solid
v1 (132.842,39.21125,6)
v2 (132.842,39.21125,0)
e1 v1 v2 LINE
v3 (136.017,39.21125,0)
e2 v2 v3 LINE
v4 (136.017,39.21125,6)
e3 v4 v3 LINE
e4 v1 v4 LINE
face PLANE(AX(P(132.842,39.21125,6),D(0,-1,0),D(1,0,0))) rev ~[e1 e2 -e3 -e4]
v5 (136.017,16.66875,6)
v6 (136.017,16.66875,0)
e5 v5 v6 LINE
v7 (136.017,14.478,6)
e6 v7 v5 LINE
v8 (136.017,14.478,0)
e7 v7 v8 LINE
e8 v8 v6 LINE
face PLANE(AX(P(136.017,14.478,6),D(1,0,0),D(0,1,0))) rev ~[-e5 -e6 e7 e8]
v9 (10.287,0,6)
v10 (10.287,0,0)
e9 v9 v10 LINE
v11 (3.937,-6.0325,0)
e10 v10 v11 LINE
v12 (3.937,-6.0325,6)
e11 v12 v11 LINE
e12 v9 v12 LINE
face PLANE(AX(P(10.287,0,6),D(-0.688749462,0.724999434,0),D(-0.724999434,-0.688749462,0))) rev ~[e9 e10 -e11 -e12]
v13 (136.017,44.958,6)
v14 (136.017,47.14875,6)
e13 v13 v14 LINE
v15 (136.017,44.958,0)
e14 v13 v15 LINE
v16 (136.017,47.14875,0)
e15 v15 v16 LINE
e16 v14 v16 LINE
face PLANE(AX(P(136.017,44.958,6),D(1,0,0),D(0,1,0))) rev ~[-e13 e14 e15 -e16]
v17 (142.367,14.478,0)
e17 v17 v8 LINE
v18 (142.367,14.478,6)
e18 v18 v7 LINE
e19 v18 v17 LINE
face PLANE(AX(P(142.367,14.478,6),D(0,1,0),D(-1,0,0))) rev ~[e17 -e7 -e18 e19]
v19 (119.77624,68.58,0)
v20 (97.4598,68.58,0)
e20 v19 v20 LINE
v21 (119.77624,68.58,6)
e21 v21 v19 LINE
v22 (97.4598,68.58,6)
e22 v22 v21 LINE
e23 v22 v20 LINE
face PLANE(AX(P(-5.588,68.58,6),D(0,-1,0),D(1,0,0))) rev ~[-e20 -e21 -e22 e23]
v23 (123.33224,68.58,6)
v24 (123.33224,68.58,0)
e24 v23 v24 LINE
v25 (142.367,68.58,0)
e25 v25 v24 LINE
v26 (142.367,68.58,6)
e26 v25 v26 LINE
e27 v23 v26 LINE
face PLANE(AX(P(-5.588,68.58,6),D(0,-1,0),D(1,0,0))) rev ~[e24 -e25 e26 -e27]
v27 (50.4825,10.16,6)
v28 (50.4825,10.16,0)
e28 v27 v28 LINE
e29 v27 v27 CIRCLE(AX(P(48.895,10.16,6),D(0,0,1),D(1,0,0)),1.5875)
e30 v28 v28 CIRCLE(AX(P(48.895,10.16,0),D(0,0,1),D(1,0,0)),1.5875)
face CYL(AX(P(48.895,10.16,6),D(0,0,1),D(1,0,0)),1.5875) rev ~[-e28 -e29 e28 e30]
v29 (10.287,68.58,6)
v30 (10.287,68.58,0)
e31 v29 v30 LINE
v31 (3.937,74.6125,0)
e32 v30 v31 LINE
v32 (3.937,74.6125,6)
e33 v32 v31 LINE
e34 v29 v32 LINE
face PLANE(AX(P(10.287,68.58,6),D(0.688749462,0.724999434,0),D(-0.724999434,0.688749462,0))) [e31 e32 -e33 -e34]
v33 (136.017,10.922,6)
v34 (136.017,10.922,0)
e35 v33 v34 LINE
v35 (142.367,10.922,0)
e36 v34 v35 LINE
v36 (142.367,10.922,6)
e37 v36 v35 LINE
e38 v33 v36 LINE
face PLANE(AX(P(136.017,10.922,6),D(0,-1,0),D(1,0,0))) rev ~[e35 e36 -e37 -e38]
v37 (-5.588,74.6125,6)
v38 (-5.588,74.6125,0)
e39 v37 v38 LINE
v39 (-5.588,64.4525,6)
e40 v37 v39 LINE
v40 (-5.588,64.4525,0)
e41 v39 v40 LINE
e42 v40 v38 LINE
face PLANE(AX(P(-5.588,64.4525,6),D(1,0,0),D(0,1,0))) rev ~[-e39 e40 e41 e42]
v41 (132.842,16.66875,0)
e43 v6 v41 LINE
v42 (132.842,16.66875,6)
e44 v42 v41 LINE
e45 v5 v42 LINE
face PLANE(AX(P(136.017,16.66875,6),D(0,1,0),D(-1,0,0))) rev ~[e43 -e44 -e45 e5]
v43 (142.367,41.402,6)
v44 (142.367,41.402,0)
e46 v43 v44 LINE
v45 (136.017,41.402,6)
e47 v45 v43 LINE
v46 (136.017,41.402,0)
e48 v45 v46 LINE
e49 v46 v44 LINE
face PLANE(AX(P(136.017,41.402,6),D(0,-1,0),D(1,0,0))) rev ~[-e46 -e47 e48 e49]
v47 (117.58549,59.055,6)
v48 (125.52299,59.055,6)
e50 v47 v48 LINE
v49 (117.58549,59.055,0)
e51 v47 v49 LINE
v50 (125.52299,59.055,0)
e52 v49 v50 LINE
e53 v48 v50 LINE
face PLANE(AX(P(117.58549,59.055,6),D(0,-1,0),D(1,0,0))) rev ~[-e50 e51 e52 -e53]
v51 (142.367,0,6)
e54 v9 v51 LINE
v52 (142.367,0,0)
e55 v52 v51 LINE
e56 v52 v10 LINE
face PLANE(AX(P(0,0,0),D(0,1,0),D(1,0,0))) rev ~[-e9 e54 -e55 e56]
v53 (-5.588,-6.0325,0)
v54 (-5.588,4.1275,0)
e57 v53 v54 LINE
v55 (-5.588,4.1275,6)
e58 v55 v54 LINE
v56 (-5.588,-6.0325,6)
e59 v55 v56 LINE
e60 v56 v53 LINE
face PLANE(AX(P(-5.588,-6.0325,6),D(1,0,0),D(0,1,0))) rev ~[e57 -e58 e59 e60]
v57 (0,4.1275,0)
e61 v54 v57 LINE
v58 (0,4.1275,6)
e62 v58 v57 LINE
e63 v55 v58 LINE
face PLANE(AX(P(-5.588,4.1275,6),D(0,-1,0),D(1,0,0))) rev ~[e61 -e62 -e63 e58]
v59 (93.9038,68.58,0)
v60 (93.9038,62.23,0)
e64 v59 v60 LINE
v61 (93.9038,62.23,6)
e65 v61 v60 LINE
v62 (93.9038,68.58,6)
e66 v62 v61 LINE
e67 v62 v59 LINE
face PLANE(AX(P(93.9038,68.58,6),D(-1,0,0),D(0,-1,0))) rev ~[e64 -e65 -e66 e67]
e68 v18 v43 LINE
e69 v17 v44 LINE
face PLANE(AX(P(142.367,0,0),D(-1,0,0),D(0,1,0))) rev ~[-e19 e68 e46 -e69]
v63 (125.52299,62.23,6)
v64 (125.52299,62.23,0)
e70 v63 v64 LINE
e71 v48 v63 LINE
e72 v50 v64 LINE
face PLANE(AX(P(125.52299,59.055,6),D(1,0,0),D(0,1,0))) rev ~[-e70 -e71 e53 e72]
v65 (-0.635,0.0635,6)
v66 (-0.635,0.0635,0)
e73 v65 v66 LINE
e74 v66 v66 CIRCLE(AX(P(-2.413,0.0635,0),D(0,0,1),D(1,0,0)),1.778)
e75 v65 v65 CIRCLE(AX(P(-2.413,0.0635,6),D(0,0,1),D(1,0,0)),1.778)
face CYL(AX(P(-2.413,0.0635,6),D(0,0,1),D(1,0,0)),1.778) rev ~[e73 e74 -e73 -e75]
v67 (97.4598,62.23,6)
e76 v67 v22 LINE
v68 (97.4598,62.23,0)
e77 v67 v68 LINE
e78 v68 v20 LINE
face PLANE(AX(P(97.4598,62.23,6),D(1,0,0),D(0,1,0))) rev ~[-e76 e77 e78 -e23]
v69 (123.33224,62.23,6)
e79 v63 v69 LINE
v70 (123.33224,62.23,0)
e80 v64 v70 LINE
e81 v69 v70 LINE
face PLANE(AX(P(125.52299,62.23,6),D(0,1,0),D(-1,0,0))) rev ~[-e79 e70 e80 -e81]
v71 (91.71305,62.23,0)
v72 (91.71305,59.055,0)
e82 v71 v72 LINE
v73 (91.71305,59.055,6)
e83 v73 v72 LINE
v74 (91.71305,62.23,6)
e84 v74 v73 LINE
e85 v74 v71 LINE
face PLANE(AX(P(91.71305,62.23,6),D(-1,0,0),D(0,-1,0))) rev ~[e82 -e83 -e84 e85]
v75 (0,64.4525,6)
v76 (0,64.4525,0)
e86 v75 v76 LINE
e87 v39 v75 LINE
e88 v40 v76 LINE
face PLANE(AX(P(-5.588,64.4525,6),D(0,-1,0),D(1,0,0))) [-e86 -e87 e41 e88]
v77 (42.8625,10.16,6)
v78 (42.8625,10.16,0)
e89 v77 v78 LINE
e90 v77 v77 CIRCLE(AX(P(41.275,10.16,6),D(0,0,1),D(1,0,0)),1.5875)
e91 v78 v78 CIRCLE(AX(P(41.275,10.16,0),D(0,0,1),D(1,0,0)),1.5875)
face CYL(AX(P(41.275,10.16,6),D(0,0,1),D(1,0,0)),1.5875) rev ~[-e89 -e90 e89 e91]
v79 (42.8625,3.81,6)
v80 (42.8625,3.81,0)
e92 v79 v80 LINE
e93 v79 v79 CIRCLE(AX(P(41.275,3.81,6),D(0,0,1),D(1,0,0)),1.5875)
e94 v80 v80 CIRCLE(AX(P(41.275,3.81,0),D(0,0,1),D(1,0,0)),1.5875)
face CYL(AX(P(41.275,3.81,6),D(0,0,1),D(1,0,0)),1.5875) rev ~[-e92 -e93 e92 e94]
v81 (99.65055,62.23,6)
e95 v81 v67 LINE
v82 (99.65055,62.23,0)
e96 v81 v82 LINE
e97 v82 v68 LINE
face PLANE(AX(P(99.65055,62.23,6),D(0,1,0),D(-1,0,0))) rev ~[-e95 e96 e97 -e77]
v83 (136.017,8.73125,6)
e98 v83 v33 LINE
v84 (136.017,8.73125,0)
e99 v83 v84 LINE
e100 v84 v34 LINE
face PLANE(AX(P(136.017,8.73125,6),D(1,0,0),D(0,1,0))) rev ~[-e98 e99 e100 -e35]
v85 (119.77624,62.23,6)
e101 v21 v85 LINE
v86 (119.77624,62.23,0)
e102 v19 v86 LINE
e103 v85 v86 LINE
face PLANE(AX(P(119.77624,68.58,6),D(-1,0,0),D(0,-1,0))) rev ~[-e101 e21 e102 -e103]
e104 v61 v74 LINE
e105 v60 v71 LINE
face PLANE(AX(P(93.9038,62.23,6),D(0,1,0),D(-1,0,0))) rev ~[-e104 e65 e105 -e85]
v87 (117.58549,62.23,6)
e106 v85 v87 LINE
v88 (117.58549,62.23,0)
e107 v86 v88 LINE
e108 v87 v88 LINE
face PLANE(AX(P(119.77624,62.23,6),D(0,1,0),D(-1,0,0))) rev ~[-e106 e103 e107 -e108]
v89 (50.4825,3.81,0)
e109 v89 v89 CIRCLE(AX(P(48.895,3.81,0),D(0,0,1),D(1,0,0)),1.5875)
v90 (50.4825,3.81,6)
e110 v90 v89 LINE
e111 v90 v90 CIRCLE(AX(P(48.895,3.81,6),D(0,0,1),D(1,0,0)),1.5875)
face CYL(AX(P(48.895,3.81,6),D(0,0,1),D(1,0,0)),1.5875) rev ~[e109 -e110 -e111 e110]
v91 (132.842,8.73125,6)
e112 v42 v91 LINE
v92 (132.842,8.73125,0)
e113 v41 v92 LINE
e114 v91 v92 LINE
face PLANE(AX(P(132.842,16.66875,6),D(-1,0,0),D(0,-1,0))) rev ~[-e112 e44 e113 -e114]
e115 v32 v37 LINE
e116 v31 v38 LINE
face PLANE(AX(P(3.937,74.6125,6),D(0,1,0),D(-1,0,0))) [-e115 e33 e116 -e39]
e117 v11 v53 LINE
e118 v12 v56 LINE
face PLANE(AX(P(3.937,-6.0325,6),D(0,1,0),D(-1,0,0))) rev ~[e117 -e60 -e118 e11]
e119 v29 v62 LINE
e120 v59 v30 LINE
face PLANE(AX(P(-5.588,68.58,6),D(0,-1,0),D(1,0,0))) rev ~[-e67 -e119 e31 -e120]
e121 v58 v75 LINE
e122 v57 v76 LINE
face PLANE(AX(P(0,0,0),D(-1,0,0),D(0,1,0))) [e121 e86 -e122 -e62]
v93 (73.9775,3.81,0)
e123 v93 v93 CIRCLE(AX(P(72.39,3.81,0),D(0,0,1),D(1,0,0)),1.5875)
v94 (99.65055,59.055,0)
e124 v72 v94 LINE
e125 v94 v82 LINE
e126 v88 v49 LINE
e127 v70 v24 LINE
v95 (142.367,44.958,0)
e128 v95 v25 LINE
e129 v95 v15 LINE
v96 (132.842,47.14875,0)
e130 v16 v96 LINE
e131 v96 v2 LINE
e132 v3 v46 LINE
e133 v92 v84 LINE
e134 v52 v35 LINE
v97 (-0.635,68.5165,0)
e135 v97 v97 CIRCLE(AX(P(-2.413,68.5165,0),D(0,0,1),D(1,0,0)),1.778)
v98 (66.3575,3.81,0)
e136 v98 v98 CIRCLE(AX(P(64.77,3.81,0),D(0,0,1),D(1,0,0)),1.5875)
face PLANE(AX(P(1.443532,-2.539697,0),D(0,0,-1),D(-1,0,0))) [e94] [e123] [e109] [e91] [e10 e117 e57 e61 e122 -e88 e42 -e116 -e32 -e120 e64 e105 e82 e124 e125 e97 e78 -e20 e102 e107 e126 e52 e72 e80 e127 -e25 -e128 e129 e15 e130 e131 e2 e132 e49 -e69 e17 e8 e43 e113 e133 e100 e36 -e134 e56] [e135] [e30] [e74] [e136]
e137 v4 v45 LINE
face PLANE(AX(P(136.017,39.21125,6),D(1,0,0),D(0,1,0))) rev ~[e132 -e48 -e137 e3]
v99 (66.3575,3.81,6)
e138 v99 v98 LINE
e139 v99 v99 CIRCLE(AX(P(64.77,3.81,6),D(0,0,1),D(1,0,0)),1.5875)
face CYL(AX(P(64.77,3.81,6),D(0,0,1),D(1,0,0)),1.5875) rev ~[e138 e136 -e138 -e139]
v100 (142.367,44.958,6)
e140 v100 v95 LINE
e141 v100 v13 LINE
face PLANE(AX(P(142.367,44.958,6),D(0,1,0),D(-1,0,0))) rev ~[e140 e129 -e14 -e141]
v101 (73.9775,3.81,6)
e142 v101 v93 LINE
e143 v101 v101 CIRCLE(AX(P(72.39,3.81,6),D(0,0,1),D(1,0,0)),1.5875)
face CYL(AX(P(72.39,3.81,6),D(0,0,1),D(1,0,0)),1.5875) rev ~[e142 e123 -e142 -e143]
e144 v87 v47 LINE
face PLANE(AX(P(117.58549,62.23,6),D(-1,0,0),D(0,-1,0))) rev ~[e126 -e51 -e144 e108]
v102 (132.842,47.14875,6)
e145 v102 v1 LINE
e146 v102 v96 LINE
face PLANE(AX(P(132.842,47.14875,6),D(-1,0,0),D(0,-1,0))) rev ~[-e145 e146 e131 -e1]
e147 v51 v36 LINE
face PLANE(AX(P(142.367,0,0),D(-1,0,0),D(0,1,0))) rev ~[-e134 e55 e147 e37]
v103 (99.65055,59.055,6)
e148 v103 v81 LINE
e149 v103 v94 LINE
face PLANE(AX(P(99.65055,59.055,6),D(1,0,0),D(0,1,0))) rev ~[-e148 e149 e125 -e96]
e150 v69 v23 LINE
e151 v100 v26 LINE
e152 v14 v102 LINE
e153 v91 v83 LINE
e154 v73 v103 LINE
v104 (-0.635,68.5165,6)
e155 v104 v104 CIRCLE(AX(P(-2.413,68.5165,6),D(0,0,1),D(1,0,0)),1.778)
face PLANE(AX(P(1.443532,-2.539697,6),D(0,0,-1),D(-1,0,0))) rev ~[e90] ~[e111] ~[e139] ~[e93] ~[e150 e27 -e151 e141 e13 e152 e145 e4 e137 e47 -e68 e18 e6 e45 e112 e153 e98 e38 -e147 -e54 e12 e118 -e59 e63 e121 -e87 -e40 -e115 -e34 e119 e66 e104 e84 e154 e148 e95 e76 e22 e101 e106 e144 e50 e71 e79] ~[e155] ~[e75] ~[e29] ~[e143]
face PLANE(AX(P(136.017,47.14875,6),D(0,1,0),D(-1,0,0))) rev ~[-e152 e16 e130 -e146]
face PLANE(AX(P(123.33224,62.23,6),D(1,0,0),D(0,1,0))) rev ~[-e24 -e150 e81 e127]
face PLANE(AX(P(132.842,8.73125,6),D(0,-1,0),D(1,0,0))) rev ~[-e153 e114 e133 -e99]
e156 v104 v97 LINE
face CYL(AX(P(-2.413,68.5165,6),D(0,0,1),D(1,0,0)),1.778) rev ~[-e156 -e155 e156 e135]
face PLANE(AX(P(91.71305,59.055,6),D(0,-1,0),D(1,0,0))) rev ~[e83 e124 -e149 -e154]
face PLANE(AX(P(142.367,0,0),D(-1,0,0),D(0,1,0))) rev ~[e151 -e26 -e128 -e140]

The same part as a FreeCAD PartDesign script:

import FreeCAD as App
import Part
import Sketcher
from FreeCAD import Vector
Q = App.Units.Quantity


def add_polygon(sketch, points):
    """Adds a closed chain of lines whose ends are joined by coincident constraints."""
    first, n = sketch.GeometryCount, len(points)
    for a, b in zip(points, points[1:] + points[:1]):
        sketch.addGeometry(Part.LineSegment(App.Vector(*a, 0), App.Vector(*b, 0)), False)
    for i in range(n):
        sketch.addConstraint(Sketcher.Constraint("Coincident", first + i, 2, first + (i + 1) % n, 1))

doc = App.newDocument("Part")
body = doc.addObject("PartDesign::Body", "Body")

sketch1 = doc.addObject("Sketcher::SketchObject", "Sketch")
body.addObject(sketch1)
sketch1.AttachmentSupport = (doc.XY_Plane, [""])
sketch1.MapMode = "FlatFace"
add_polygon(sketch1, [(0, 68.58), (0, 0), (142.367, 0), (142.367, 68.58)])
sketch1.addConstraint([
    Sketcher.Constraint("Vertical", 0),
    Sketcher.Constraint("Horizontal", 1),
    Sketcher.Constraint("Vertical", 2),
    Sketcher.Constraint("Horizontal", 3),
    Sketcher.Constraint("Coincident", 0, 2, -1, 1),
    Sketcher.Constraint("DistanceY", 0, 2, 0, 1, Q("2.7 in")),
    Sketcher.Constraint("DistanceX", 1, 1, 1, 2, Q("5.605 in")),
])
pad1 = doc.addObject("PartDesign::Pad", "Pad")
body.addObject(pad1)
pad1.Profile = sketch1
pad1.Length = 6

sketch2 = doc.addObject("Sketcher::SketchObject", "Sketch001")
body.addObject(sketch2)
sketch2.AttachmentSupport = (doc.XY_Plane, [""])
sketch2.MapMode = "FlatFace"
sketch2.AttachmentOffset = App.Placement(Vector(0, 0, 6), App.Rotation())
add_polygon(sketch2, [(-5.588, 68.58), (-5.588, 64.4525), (0, 64.4525), (0, 68.58)])
add_polygon(sketch2, [(-5.588, 4.1275), (-5.588, 0), (0, 0), (0, 4.1275)])
sketch2.addConstraint([
    Sketcher.Constraint("Vertical", 0),
    Sketcher.Constraint("Horizontal", 1),
    Sketcher.Constraint("Vertical", 2),
    Sketcher.Constraint("Horizontal", 3),
    Sketcher.Constraint("Vertical", 4),
    Sketcher.Constraint("Horizontal", 5),
    Sketcher.Constraint("Vertical", 6),
    Sketcher.Constraint("Horizontal", 7),
    Sketcher.Constraint("Coincident", 5, 2, -1, 1),
    Sketcher.Constraint("PointOnObject", 1, 2, -2),
    Sketcher.Constraint("Vertical", 3, 2, 4, 2),
    Sketcher.Constraint("Equal", 2, 4),
    Sketcher.Constraint("DistanceX", 1, 1, 1, 2, Q("0.22 in")),
    Sketcher.Constraint("DistanceY", -1, 1, 2, 2, Q("2.7 in")),
    Sketcher.Constraint("DistanceY", 0, 2, 0, 1, Q("0.1625 in")),
])
pad2 = doc.addObject("PartDesign::Pad", "Pad001")
body.addObject(pad2)
pad2.Profile = sketch2
pad2.Length = 6
pad2.Reversed = True

sketch3 = doc.addObject("Sketcher::SketchObject", "Sketch002")
body.addObject(sketch3)
sketch3.AttachmentSupport = (doc.XY_Plane, [""])
sketch3.MapMode = "FlatFace"
sketch3.AttachmentOffset = App.Placement(Vector(0, 0, 6), App.Rotation())
add_polygon(sketch3, [(0, 72.39), (0, 68.58), (9.525, 68.58), (2.54, 72.39)])
add_polygon(sketch3, [(0, 0), (0, -3.81), (2.54, -3.81), (9.525, 0)])
sketch3.addConstraint([
    Sketcher.Constraint("Vertical", 0),
    Sketcher.Constraint("Horizontal", 1),
    Sketcher.Constraint("Horizontal", 3),
    Sketcher.Constraint("Vertical", 4),
    Sketcher.Constraint("Horizontal", 5),
    Sketcher.Constraint("Horizontal", 7),
    Sketcher.Constraint("Coincident", 7, 2, -1, 1),
    Sketcher.Constraint("PointOnObject", 0, 2, -2),
    Sketcher.Constraint("Vertical", 2, 2, 5, 2),
    Sketcher.Constraint("Vertical", 1, 2, 6, 2),
    Sketcher.Constraint("Equal", 0, 4),
    Sketcher.Constraint("DistanceX", 3, 2, 3, 1, Q("0.1 in")),
    Sketcher.Constraint("DistanceY", 4, 2, 3, 2, Q("3 in")),
    Sketcher.Constraint("DistanceY", 0, 2, 0, 1, Q("0.15 in")),
    Sketcher.Constraint("DistanceX", 1, 1, 1, 2, Q("0.375 in")),
])
pad3 = doc.addObject("PartDesign::Pad", "Pad002")
body.addObject(pad3)
pad3.Profile = sketch3
pad3.Length = 6
pad3.Reversed = True

sketch4 = doc.addObject("Sketcher::SketchObject", "Sketch003")
body.addObject(sketch4)
sketch4.AttachmentSupport = (doc.XY_Plane, [""])
sketch4.MapMode = "FlatFace"
sketch4.AttachmentOffset = App.Placement(Vector(0, 0, 6), App.Rotation())
add_polygon(sketch4, [(142.367, 44.958), (136.017, 44.958), (136.017, 47.14875), (132.842, 47.14875), (132.842, 39.21125), (136.017, 39.21125), (136.017, 41.402), (142.367, 41.402)])
add_polygon(sketch4, [(142.367, 14.478), (136.017, 14.478), (136.017, 16.66875), (132.842, 16.66875), (132.842, 8.73125), (136.017, 8.73125), (136.017, 10.922), (142.367, 10.922)])
add_polygon(sketch4, [(93.9038, 62.23), (91.71305, 62.23), (91.71305, 59.055), (99.65055, 59.055), (99.65055, 62.23), (97.4598, 62.23), (97.4598, 68.58), (93.9038, 68.58)])
add_polygon(sketch4, [(123.33224, 68.58), (119.77624, 68.58), (119.77624, 62.23), (117.58549, 62.23), (117.58549, 59.055), (125.52299, 59.055), (125.52299, 62.23), (123.33224, 62.23)])
sketch4.addConstraint([
    Sketcher.Constraint("Horizontal", 0),
    Sketcher.Constraint("Vertical", 1),
    Sketcher.Constraint("Horizontal", 2),
    Sketcher.Constraint("Vertical", 3),
    Sketcher.Constraint("Horizontal", 4),
    Sketcher.Constraint("Vertical", 5),
    Sketcher.Constraint("Horizontal", 6),
    Sketcher.Constraint("Vertical", 7),
    Sketcher.Constraint("Horizontal", 8),
    Sketcher.Constraint("Vertical", 9),
    Sketcher.Constraint("Horizontal", 10),
    Sketcher.Constraint("Vertical", 11),
    Sketcher.Constraint("Horizontal", 12),
    Sketcher.Constraint("Vertical", 13),
    Sketcher.Constraint("Horizontal", 14),
    Sketcher.Constraint("Vertical", 15),
    Sketcher.Constraint("Horizontal", 16),
    Sketcher.Constraint("Vertical", 17),
    Sketcher.Constraint("Horizontal", 18),
    Sketcher.Constraint("Vertical", 19),
    Sketcher.Constraint("Horizontal", 20),
    Sketcher.Constraint("Vertical", 21),
    Sketcher.Constraint("Horizontal", 22),
    Sketcher.Constraint("Vertical", 23),
    Sketcher.Constraint("Horizontal", 24),
    Sketcher.Constraint("Vertical", 25),
    Sketcher.Constraint("Horizontal", 26),
    Sketcher.Constraint("Vertical", 27),
    Sketcher.Constraint("Horizontal", 28),
    Sketcher.Constraint("Vertical", 29),
    Sketcher.Constraint("Horizontal", 30),
    Sketcher.Constraint("Vertical", 31),
    Sketcher.Constraint("Horizontal", 16, 2, 19, 2),
    Sketcher.Constraint("Horizontal", 22, 2, 24, 2),
    Sketcher.Constraint("Horizontal", 23, 2, 25, 2),
    Sketcher.Constraint("Horizontal", 18, 2, 27, 2),
    Sketcher.Constraint("Horizontal", 26, 2, 29, 2),
    Sketcher.Constraint("Vertical", 1, 2, 4, 2),
    Sketcher.Constraint("Vertical", 5, 2, 8, 2),
    Sketcher.Constraint("Vertical", 3, 2, 10, 2),
    Sketcher.Constraint("Vertical", 9, 2, 12, 2),
    Sketcher.Constraint("Vertical", 7, 2, 14, 2),
    Sketcher.Constraint("Equal", 16, 20),
    Sketcher.Constraint("Equal", 22, 24),
    Sketcher.Constraint("Equal", 20, 26),
    Sketcher.Constraint("Equal", 18, 28),
    Sketcher.Constraint("Equal", 30, 1),
    Sketcher.Constraint("Equal", 28, 3),
    Sketcher.Constraint("Equal", 1, 5),
    Sketcher.Constraint("Equal", 5, 9),
    Sketcher.Constraint("Equal", 3, 11),
    Sketcher.Constraint("Equal", 9, 13),
    Sketcher.Constraint("Equal", 12, 17),
    Sketcher.Constraint("Equal", 14, 21),
    Sketcher.Constraint("DistanceX", 0, 2, 0, 1, Q("0.25 in")),
    Sketcher.Constraint("DistanceX", 22, 2, 22, 1, Q("0.14 in")),
    Sketcher.Constraint("DistanceY", -1, 1, 21, 2, Q("2.7 in")),
    Sketcher.Constraint("DistanceY", 8, 2, 0, 2, Q("1.2 in")),
    Sketcher.Constraint("DistanceX", 2, 2, 2, 1, Q("0.125 in")),
    Sketcher.Constraint("DistanceX", 18, 1, 18, 2, Q("0.3125 in")),
    Sketcher.Constraint("DistanceY", -1, 1, 0, 2, Q("1.77 in")),
    Sketcher.Constraint("DistanceX", -1, 1, 2, 2, Q("5.23 in")),
    Sketcher.Constraint("DistanceX", -1, 1, 20, 2, Q("3.837 in")),
    Sketcher.Constraint("DistanceX", -1, 1, 24, 2, Q("4.7156 in")),
])
pocket1 = doc.addObject("PartDesign::Pocket", "Pocket")
body.addObject(pocket1)
pocket1.Profile = sketch4
pocket1.Type = "ThroughAll"

sketch5 = doc.addObject("Sketcher::SketchObject", "Sketch004")
body.addObject(sketch5)
sketch5.AttachmentSupport = (doc.XY_Plane, [""])
sketch5.MapMode = "FlatFace"
sketch5.AttachmentOffset = App.Placement(Vector(0, 0, 6), App.Rotation())
add_polygon(sketch5, [(3.937, -6.0325), (10.287, 0), (-5.588, 0), (-5.588, -6.0325)])
add_polygon(sketch5, [(-5.588, 68.58), (10.287, 68.58), (3.937, 74.6125), (-5.588, 74.6125)])
sketch5.addConstraint([
    Sketcher.Constraint("Horizontal", 1),
    Sketcher.Constraint("Vertical", 2),
    Sketcher.Constraint("Horizontal", 3),
    Sketcher.Constraint("Horizontal", 4),
    Sketcher.Constraint("Horizontal", 6),
    Sketcher.Constraint("Vertical", 7),
    Sketcher.Constraint("PointOnObject", 0, 2, -1),
    Sketcher.Constraint("Vertical", 0, 2, 4, 2),
    Sketcher.Constraint("Vertical", 3, 2, 5, 2),
    Sketcher.Constraint("Vertical", 2, 2, 6, 2),
    Sketcher.Constraint("Equal", 2, 7),
    Sketcher.Constraint("DistanceY", -1, 1, 4, 2, Q("2.7 in")),
    Sketcher.Constraint("DistanceX", 1, 2, 1, 1, Q("0.625 in")),
    Sketcher.Constraint("DistanceX", 3, 1, 3, 2, Q("0.375 in")),
    Sketcher.Constraint("DistanceX", 1, 2, -1, 1, Q("0.22 in")),
    Sketcher.Constraint("DistanceY", 2, 2, 2, 1, Q("0.2375 in")),
])
pad4 = doc.addObject("PartDesign::Pad", "Pad003")
body.addObject(pad4)
pad4.Profile = sketch5
pad4.Length = 6
pad4.Reversed = True

sketch6 = doc.addObject("Sketcher::SketchObject", "Sketch005")
body.addObject(sketch6)
sketch6.AttachmentSupport = (doc.XY_Plane, [""])
sketch6.MapMode = "FlatFace"
sketch6.AttachmentOffset = App.Placement(Vector(0, 0, 6), App.Rotation())
sketch6.addGeometry([
    Part.Circle(Vector(-2.413, 68.5165, 0), Vector(0, 0, 1), 1.778),
    Part.Circle(Vector(-2.413, 0.0635, 0), Vector(0, 0, 1), 1.778),
    Part.Circle(Vector(64.77, 3.81, 0), Vector(0, 0, 1), 1.5875),
    Part.Circle(Vector(72.39, 3.81, 0), Vector(0, 0, 1), 1.5875),
    Part.Circle(Vector(41.275, 3.81, 0), Vector(0, 0, 1), 1.5875),
    Part.Circle(Vector(48.895, 3.81, 0), Vector(0, 0, 1), 1.5875),
    Part.Circle(Vector(41.275, 10.16, 0), Vector(0, 0, 1), 1.5875),
    Part.Circle(Vector(48.895, 10.16, 0), Vector(0, 0, 1), 1.5875),
], False)
sketch6.addConstraint([
    Sketcher.Constraint("Equal", 0, 1),
    Sketcher.Constraint("Equal", 2, 3),
    Sketcher.Constraint("Equal", 3, 4),
    Sketcher.Constraint("Equal", 4, 5),
    Sketcher.Constraint("Equal", 5, 6),
    Sketcher.Constraint("Equal", 6, 7),
    Sketcher.Constraint("Horizontal", 2, 3, 3, 3),
    Sketcher.Constraint("Horizontal", 3, 3, 4, 3),
    Sketcher.Constraint("Horizontal", 4, 3, 5, 3),
    Sketcher.Constraint("Horizontal", 6, 3, 7, 3),
    Sketcher.Constraint("Vertical", 0, 3, 1, 3),
    Sketcher.Constraint("Vertical", 4, 3, 6, 3),
    Sketcher.Constraint("Vertical", 5, 3, 7, 3),
    Sketcher.Constraint("Diameter", 0, Q("0.14 in")),
    Sketcher.Constraint("Diameter", 2, Q("0.125 in")),
    Sketcher.Constraint("DistanceY", -1, 1, 6, 3, Q("0.4 in")),
    Sketcher.Constraint("DistanceX", 2, 3, 3, 3, Q("0.3 in")),
    Sketcher.Constraint("DistanceX", 4, 3, 5, 3, Q("0.3 in")),
    Sketcher.Constraint("DistanceX", -1, 1, 2, 3, Q("2.55 in")),
    Sketcher.Constraint("DistanceY", -1, 1, 2, 3, Q("0.15 in")),
    Sketcher.Constraint("DistanceX", 1, 3, 4, 3, Q("1.72 in")),
    Sketcher.Constraint("DistanceX", 0, 3, -1, 1, Q("0.095 in")),
    Sketcher.Constraint("DistanceY", 1, 3, 0, 3, Q("2.695 in")),
    Sketcher.Constraint("DistanceY", -1, 1, 0, 3, Q("2.6975 in")),
])
pocket2 = doc.addObject("PartDesign::Pocket", "Pocket001")
body.addObject(pocket2)
pocket2.Profile = sketch6
pocket2.Type = "ThroughAll"

doc.recompute()
